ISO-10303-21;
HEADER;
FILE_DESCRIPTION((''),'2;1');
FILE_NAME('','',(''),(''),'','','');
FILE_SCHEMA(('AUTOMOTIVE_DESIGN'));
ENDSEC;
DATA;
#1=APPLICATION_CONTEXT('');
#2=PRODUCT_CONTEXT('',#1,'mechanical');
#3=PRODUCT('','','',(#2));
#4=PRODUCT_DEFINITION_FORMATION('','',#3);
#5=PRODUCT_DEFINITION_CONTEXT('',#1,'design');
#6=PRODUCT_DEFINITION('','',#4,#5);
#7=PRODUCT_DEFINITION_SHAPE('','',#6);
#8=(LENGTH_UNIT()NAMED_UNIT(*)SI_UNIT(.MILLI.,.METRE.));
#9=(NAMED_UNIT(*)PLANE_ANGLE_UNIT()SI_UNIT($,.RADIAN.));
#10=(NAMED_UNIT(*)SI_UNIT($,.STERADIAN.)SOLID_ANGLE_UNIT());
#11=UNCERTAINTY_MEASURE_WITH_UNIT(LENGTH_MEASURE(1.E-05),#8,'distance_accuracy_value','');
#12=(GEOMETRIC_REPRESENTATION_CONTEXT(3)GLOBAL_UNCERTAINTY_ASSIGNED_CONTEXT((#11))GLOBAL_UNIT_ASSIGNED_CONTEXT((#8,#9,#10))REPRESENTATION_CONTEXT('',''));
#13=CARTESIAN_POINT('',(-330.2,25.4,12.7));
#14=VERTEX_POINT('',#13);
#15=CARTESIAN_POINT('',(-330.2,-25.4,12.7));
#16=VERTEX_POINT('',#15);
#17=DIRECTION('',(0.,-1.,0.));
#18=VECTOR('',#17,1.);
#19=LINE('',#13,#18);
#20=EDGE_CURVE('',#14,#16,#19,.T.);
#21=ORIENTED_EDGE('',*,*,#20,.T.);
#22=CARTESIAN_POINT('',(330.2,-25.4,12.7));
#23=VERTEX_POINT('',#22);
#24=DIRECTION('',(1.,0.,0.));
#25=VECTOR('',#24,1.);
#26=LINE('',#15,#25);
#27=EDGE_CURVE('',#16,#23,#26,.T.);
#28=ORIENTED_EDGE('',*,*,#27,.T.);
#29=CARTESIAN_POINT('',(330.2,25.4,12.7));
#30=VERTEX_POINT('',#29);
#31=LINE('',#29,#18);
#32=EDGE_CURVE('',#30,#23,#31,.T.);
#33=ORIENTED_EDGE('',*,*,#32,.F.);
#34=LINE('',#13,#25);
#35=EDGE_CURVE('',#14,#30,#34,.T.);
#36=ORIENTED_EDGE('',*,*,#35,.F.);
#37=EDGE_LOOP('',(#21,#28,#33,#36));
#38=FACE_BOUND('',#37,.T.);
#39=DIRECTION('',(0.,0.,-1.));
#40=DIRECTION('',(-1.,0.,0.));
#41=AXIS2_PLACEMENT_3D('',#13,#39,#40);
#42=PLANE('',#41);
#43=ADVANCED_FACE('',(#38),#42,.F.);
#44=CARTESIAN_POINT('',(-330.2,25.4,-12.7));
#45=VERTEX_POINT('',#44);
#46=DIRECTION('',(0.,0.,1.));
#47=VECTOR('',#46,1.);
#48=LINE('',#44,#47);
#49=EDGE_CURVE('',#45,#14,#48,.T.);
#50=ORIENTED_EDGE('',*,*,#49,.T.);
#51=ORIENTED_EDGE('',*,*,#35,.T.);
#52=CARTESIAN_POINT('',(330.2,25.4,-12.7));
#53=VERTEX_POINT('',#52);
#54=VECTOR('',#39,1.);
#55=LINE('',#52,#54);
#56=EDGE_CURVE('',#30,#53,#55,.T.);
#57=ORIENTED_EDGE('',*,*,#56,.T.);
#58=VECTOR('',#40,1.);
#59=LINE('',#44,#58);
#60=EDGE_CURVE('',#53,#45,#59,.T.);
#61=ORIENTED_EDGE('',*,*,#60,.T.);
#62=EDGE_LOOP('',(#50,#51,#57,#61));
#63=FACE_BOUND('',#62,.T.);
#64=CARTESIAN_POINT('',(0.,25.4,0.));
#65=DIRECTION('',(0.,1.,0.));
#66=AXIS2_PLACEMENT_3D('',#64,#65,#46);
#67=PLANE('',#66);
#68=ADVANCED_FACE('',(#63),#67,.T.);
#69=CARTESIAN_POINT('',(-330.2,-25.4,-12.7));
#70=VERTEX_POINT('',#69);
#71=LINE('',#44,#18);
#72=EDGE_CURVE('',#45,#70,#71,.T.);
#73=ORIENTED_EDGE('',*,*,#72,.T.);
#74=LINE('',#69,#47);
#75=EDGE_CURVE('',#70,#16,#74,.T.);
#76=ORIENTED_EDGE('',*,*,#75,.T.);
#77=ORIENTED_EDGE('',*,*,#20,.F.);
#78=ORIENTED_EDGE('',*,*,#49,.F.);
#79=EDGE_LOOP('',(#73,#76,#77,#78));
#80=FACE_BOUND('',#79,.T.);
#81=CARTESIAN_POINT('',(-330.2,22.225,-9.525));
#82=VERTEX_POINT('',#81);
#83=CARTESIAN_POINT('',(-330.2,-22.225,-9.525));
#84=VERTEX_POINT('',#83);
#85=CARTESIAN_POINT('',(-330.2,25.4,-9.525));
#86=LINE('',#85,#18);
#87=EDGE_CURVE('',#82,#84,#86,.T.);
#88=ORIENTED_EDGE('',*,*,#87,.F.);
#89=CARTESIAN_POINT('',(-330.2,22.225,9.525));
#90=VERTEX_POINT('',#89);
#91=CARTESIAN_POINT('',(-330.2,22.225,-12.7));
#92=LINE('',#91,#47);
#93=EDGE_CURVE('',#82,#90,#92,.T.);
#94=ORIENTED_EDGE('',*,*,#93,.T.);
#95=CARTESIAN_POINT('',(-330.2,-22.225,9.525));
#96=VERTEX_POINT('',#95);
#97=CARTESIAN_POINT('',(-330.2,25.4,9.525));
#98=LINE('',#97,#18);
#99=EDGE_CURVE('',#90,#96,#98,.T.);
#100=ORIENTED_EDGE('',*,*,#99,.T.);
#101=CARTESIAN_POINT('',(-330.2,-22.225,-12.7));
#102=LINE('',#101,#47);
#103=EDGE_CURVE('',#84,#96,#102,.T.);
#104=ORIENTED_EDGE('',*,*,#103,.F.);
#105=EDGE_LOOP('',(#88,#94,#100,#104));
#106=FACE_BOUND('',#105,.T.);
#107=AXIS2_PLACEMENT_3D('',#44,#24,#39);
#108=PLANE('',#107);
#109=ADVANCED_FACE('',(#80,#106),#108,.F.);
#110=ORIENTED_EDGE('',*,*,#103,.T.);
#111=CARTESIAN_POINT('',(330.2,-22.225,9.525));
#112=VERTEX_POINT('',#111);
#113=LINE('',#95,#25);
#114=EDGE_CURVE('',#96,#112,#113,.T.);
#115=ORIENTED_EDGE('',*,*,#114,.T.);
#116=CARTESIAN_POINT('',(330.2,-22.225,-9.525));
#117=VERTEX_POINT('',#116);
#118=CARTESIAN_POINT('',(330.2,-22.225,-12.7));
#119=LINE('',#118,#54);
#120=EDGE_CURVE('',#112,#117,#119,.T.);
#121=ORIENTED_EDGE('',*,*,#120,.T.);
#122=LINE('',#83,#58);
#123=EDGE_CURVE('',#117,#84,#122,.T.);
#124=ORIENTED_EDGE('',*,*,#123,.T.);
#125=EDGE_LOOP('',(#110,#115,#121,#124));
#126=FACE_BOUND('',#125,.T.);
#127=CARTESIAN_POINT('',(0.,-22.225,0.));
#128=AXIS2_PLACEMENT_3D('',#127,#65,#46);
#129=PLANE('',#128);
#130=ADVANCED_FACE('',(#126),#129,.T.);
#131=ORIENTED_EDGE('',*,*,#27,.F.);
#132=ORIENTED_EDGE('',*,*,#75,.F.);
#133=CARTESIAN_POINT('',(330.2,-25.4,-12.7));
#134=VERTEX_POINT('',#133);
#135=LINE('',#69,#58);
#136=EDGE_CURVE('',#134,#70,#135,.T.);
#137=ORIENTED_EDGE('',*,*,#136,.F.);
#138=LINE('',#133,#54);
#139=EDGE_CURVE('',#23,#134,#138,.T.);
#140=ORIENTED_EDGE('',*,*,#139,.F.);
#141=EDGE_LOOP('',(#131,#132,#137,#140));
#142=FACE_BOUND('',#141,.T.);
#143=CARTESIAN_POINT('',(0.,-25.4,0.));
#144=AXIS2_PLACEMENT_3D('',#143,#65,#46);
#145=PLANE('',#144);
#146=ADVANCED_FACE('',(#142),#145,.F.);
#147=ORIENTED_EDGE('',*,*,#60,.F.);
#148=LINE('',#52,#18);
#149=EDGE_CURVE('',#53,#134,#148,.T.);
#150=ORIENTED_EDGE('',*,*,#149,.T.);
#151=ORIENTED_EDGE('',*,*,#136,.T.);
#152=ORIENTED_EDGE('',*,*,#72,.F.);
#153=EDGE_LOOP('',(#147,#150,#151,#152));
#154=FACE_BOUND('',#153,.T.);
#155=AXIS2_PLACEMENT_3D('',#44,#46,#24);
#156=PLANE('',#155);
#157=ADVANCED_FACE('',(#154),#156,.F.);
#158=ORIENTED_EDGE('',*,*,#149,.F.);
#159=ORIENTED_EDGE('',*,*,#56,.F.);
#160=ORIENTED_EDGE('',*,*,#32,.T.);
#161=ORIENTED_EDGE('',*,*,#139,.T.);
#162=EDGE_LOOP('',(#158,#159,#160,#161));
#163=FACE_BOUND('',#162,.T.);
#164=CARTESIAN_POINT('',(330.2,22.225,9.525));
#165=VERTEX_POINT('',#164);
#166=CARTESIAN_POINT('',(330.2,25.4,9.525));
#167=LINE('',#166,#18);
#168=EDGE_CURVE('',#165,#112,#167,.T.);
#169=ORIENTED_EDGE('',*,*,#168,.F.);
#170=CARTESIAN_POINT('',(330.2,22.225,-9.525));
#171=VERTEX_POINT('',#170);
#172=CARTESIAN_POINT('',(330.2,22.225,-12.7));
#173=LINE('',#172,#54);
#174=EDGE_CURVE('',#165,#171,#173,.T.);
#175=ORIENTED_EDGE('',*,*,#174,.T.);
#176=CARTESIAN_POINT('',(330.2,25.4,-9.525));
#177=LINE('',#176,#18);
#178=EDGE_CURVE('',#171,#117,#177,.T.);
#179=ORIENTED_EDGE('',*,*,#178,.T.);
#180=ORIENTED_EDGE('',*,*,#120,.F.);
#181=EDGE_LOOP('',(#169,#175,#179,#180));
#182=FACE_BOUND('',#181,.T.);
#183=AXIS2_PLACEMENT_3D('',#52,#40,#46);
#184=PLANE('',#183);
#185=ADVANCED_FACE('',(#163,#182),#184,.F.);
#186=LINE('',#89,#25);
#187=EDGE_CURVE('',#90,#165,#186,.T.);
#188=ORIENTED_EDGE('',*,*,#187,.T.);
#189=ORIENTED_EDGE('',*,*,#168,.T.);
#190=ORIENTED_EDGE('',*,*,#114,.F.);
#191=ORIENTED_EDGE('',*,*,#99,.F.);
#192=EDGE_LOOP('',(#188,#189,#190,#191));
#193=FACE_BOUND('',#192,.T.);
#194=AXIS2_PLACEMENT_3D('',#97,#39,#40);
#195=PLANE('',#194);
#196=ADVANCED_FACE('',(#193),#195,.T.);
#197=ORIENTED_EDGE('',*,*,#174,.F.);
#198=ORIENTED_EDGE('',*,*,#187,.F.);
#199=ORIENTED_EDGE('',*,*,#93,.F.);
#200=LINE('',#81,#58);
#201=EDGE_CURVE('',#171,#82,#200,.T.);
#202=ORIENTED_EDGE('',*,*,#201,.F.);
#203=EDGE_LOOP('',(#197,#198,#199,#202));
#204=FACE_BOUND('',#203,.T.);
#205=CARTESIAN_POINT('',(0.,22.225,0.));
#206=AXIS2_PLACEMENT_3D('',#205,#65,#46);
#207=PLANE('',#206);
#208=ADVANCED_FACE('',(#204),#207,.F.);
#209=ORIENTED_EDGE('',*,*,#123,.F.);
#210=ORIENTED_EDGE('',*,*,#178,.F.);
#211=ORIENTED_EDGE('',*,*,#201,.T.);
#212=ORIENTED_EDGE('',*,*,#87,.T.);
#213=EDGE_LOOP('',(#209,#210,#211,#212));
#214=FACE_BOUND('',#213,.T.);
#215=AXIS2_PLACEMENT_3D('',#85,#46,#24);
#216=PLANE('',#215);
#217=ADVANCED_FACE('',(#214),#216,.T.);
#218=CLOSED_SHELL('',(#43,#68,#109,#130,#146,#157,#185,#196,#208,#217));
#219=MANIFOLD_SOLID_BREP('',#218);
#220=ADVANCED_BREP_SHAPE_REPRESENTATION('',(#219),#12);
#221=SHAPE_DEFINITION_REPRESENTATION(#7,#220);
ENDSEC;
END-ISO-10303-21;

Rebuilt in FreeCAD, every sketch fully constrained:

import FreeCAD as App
import Part
import Sketcher

V = App.Vector
Q = App.Units.Quantity


def faces_at(feature, points):
    """Names of the faces that lie closest to the given points."""
    faces = feature.Shape.Faces
    near = lambda p: min(range(len(faces)), key=lambda i: faces[i].distToShape(Part.Vertex(*p))[0])
    return sorted({f"Face{near(p) + 1}" for p in points})

doc = App.newDocument("Part")
body = doc.addObject("PartDesign::Body", "Body")

# Sketch on XZ plane
sketch1 = body.newObject("Sketcher::SketchObject", "Sketch")
sketch1.AttachmentSupport = (doc.getObject("XZ_Plane"), [""])
sketch1.MapMode = "FlatFace"
sketch1.addGeometry(Part.LineSegment(V(-330, -13, 0), V(-330, 13, 0)), False)
sketch1.addGeometry(Part.LineSegment(V(-330, 13, 0), V(330, 13, 0)), False)
sketch1.addGeometry(Part.LineSegment(V(330, 13, 0), V(330, -13, 0)), False)
sketch1.addGeometry(Part.LineSegment(V(330, -13, 0), V(-330, -13, 0)), False)
sketch1.addConstraint(Sketcher.Constraint("Coincident", 0, 2, 1, 1))
sketch1.addConstraint(Sketcher.Constraint("Coincident", 1, 2, 2, 1))
sketch1.addConstraint(Sketcher.Constraint("Coincident", 2, 2, 3, 1))
sketch1.addConstraint(Sketcher.Constraint("Coincident", 3, 2, 0, 1))
sketch1.addConstraint(Sketcher.Constraint("Vertical", 0))
sketch1.addConstraint(Sketcher.Constraint("Horizontal", 1))
sketch1.addConstraint(Sketcher.Constraint("Vertical", 2))
sketch1.addConstraint(Sketcher.Constraint("Horizontal", 3))
sketch1.addConstraint(Sketcher.Constraint("Symmetric", 0, 2, 2, 2, -1, 1))
sketch1.addConstraint(Sketcher.Constraint("DistanceX", 1, 1, 1, 2, Q("26 in")))
sketch1.addConstraint(Sketcher.Constraint("DistanceY", 0, 1, 0, 2, Q("1 in")))
pad1 = body.newObject("PartDesign::Pad", "Pad")
pad1.Profile = sketch1
pad1.Length = Q("2 in")
pad1.Midplane = True
doc.recompute()

thickness = body.newObject("PartDesign::Thickness", "Thickness")
thickness.Base = (pad1, faces_at(pad1, [(-330.2, 0, 0), (330.2, 0, 0)]))
thickness.Value = Q("0.125 in")
thickness.Reversed = True
thickness.Join = "Intersection"

doc.recompute()
